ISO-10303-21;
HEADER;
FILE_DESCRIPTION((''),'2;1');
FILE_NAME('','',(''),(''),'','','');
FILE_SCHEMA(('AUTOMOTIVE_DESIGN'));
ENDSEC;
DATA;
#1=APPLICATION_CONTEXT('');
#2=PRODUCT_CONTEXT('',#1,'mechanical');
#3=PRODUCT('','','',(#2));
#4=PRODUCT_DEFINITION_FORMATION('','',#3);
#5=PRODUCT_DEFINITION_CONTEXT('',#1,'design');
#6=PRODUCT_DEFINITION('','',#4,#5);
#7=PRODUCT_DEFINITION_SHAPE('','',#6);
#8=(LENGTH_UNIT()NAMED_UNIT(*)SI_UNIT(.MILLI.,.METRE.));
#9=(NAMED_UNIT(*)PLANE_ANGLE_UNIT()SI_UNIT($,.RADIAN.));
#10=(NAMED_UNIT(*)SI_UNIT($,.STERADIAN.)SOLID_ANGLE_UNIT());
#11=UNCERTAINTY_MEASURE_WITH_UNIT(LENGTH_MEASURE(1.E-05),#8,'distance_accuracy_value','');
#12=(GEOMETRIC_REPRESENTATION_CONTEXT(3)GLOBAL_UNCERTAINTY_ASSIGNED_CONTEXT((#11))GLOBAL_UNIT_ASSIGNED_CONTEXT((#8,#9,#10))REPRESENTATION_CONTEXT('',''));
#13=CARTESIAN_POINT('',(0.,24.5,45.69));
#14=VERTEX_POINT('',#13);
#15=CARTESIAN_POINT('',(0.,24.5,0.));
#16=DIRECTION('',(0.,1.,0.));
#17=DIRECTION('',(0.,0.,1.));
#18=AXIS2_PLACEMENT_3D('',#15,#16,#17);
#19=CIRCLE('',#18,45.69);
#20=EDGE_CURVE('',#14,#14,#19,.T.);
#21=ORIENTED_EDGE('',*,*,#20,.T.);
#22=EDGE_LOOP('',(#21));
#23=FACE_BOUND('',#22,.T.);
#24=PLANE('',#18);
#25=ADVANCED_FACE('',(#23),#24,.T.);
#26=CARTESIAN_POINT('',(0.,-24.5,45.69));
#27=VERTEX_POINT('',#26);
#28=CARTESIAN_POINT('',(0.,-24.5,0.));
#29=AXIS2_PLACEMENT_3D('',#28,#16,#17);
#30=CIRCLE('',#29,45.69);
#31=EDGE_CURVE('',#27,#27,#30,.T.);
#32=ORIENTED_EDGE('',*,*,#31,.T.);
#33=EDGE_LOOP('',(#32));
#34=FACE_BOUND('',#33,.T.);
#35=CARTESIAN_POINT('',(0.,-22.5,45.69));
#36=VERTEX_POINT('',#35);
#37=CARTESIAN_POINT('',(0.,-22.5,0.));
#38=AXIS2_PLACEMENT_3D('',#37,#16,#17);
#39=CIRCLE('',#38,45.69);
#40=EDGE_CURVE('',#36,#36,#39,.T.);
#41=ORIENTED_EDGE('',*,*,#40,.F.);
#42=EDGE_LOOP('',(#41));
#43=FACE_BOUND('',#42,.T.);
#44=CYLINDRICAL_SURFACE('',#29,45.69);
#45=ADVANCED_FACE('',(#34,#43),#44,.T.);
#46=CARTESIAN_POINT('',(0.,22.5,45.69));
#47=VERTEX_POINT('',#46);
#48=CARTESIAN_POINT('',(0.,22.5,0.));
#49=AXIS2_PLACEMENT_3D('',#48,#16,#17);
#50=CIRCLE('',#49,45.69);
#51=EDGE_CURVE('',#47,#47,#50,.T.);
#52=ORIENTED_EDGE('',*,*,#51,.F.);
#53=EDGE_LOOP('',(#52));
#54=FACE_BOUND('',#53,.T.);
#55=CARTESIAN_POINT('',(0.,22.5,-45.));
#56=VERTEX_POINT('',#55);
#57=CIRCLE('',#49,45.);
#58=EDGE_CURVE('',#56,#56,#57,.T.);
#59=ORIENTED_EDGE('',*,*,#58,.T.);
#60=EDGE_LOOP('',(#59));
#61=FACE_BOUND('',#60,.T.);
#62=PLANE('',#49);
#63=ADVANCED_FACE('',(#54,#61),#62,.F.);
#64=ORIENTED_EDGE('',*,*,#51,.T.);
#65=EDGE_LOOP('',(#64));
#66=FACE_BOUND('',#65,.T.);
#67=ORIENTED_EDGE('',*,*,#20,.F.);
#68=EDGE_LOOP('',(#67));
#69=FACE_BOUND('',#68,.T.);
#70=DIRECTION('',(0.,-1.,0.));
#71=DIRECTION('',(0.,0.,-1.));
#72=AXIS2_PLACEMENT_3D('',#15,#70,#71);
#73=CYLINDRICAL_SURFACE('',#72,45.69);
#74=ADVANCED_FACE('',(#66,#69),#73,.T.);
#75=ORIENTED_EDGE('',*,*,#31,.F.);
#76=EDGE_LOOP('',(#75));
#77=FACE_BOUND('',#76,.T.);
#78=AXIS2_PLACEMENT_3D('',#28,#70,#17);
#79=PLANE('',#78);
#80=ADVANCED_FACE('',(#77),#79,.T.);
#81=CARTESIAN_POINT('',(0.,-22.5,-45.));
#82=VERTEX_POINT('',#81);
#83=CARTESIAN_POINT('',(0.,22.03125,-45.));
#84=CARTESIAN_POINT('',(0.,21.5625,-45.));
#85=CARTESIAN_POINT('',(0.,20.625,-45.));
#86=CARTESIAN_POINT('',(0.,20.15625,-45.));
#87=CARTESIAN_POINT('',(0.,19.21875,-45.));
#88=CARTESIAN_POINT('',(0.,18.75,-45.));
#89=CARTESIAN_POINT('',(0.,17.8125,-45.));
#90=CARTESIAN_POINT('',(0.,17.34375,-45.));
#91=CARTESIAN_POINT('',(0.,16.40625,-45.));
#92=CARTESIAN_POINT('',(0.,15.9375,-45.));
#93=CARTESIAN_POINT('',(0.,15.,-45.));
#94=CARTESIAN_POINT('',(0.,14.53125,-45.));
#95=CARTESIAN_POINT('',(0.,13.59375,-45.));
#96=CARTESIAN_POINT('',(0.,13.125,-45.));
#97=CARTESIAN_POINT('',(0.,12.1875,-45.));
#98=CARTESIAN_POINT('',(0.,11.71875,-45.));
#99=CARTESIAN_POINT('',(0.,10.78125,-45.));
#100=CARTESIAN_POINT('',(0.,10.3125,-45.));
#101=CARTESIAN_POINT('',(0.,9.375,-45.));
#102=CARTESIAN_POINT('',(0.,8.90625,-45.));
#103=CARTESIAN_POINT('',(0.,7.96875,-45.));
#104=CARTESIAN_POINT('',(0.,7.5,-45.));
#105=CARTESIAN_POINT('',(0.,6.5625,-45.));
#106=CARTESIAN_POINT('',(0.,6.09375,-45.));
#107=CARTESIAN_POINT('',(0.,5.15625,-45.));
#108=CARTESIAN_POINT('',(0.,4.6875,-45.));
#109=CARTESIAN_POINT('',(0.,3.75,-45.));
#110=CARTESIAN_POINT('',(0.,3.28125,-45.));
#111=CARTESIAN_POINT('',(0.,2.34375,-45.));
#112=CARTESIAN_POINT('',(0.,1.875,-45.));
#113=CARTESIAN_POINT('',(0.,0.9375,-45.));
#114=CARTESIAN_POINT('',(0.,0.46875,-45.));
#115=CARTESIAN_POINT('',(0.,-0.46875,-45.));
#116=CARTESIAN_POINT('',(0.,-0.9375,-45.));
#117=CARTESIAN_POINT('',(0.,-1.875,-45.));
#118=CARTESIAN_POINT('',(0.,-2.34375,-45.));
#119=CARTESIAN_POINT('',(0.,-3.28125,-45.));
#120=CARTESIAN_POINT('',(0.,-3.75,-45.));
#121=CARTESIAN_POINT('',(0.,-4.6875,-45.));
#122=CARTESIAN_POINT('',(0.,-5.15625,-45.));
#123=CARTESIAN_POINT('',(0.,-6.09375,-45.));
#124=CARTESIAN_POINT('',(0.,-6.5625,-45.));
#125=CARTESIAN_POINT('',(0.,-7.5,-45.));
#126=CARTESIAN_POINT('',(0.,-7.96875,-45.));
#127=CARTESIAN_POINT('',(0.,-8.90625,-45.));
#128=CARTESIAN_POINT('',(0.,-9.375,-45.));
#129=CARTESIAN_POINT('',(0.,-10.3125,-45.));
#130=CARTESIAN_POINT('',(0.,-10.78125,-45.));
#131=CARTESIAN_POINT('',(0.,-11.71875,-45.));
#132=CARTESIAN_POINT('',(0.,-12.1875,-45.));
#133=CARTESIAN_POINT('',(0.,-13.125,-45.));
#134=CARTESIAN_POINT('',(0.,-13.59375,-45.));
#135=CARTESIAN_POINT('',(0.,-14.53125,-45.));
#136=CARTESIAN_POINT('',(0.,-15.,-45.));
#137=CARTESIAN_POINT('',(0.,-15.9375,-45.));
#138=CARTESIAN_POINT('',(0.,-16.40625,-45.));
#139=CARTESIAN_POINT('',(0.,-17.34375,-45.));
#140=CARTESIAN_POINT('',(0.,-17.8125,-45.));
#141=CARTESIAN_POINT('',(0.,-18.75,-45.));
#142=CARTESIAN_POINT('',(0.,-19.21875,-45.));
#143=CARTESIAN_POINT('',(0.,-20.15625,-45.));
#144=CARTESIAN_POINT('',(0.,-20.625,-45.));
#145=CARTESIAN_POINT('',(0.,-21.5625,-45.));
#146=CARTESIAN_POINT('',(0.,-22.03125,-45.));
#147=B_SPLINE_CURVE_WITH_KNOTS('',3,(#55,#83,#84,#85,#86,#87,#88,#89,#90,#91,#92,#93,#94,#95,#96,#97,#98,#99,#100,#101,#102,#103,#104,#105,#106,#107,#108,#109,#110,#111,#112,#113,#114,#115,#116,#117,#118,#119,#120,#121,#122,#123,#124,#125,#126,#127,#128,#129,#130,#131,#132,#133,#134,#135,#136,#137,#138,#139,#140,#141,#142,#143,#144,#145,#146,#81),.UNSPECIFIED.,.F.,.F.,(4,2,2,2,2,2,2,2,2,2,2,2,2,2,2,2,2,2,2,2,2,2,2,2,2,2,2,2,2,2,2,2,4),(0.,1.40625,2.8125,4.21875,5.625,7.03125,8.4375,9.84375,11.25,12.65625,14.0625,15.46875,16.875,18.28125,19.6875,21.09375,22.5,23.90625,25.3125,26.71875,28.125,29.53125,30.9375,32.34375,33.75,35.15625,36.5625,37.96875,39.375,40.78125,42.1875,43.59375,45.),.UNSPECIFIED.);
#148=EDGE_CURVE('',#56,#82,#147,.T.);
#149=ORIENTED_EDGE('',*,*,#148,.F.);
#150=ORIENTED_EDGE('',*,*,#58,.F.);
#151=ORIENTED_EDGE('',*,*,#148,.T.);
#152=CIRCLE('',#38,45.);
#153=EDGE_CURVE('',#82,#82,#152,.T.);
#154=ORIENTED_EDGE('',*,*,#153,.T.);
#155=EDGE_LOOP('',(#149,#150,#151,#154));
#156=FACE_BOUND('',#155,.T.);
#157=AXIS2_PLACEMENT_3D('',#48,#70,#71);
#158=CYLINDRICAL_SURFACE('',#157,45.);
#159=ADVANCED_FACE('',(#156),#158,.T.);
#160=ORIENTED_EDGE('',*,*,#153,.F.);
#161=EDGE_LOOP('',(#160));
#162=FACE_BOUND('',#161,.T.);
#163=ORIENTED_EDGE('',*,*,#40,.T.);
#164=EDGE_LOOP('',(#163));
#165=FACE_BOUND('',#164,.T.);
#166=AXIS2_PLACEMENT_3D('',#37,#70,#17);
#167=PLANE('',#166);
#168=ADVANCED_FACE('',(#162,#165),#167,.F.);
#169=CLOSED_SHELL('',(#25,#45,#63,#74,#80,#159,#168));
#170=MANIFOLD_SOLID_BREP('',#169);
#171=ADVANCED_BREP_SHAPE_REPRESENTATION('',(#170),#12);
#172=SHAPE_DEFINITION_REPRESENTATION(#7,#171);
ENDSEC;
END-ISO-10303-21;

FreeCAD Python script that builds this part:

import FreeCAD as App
import Part
import Sketcher
from FreeCAD import Vector

doc = App.newDocument("Part")
body = doc.addObject("PartDesign::Body", "Body")

sketch1 = body.newObject("Sketcher::SketchObject", "Sketch")
sketch1.AttachmentSupport = (doc.getObject("XZ_Plane"), [""])
sketch1.MapMode = "FlatFace"
sketch1.addGeometry(Part.Circle(Vector(0, 0, 0), Vector(0, 0, 1), 45), False)
sketch1.addConstraint(Sketcher.Constraint("Coincident", 0, 3, -1, 1))
sketch1.addConstraint(Sketcher.Constraint("Diameter", 0, 90.0))
pad1 = body.newObject("PartDesign::Pad", "Pad")
pad1.Profile = sketch1
pad1.Length = 45
pad1.Midplane = True

sketch2 = body.newObject("Sketcher::SketchObject", "Sketch001")
sketch2.AttachmentSupport = (doc.getObject("XZ_Plane"), [""])
sketch2.MapMode = "FlatFace"
sketch2.AttachmentOffset = App.Placement(Vector(0, 0, -22.5), App.Rotation())
sketch2.addGeometry(Part.Circle(Vector(0, 0, 0), Vector(0, 0, 1), 46), False)
sketch2.addConstraint(Sketcher.Constraint("Coincident", 0, 3, -1, 1))
sketch2.addConstraint(Sketcher.Constraint("Diameter", 0, 91.38))
pad2 = body.newObject("PartDesign::Pad", "Pad001")
pad2.Profile = sketch2
pad2.Length = 2
pad2.Reversed = True
doc.recompute()

mirrored = body.newObject("PartDesign::Mirrored", "Mirrored")
mirrored.Originals = [pad2]
mirrored.MirrorPlane = (doc.getObject("XZ_Plane"), [""])
body.Tip = mirrored

doc.recompute()
